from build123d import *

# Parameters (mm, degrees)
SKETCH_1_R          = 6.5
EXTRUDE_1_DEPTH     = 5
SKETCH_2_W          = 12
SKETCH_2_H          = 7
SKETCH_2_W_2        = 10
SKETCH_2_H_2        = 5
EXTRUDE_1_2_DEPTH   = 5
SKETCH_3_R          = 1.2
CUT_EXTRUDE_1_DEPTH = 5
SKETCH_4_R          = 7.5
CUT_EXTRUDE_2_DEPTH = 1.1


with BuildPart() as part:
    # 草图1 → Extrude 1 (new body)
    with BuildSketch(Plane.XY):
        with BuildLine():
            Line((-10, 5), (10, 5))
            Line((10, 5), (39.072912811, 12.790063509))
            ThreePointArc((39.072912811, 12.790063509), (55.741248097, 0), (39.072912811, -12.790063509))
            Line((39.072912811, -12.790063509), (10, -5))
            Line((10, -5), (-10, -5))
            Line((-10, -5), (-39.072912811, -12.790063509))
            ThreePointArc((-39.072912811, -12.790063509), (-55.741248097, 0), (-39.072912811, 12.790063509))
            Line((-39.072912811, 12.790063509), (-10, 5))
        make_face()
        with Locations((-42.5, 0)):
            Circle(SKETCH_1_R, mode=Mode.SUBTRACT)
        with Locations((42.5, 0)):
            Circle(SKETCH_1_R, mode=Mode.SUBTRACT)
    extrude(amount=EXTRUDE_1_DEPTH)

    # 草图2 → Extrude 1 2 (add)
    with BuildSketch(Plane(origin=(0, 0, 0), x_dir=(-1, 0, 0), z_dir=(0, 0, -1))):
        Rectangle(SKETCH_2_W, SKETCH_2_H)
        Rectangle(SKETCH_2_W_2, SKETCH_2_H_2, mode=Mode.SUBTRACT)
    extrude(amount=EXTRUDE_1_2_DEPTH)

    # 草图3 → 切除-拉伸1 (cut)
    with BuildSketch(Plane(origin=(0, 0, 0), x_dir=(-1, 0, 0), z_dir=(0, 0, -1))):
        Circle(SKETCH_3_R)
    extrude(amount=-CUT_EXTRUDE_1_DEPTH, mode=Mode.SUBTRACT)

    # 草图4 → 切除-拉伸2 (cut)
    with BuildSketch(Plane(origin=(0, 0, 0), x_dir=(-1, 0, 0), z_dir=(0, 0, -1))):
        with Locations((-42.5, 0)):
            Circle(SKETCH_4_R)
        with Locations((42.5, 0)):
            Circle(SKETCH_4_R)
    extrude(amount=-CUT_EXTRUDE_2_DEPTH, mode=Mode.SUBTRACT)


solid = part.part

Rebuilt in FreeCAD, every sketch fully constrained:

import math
import FreeCAD as App
import Part
import Sketcher
from FreeCAD import Vector
Q = App.Units.Quantity


def add_polygon(sketch, points):
    """Adds a closed chain of lines whose ends are joined by coincident constraints."""
    first, n = sketch.GeometryCount, len(points)
    for a, b in zip(points, points[1:] + points[:1]):
        sketch.addGeometry(Part.LineSegment(App.Vector(*a, 0), App.Vector(*b, 0)), False)
    for i in range(n):
        sketch.addConstraint(Sketcher.Constraint("Coincident", first + i, 2, first + (i + 1) % n, 1))

doc = App.newDocument("Part")
params = doc.addObject("Spreadsheet::Sheet", "Params")
for row, (alias, value) in enumerate([
    ("sketch1_diameter", "13 mm"),
    ("sketch1_width", "20 mm"),
    ("pad1_length", "5 mm"),
    ("sketch2_width", "12 mm"),
    ("sketch2_width2", "10 mm"),
    ("sketch2_height", "7 mm"),
    ("sketch2_height2", "5 mm"),
    ("pad2_length", "5 mm"),
    ("sketch3_diameter", "2.4 mm"),
    ("pocket1_length", "5 mm"),
    ("sketch4_diameter", "15 mm"),
    ("pocket2_length", "1.1 mm"),
], start=1):
    params.set(f"A{row}", alias)
    params.set(f"B{row}", "=" + value)
    params.setAlias(f"B{row}", alias)

body = doc.addObject("PartDesign::Body", "Body")

# Sketch on XY plane
sketch1 = doc.addObject("Sketcher::SketchObject", "Sketch")
body.addObject(sketch1)
sketch1.AttachmentSupport = (doc.XY_Plane, [""])
sketch1.MapMode = "FlatFace"
sketch1.addGeometry([
    Part.LineSegment(Vector(10, 5, 0), Vector(-10, 5, 0)),  # 0
    Part.LineSegment(Vector(-10, 5, 0), Vector(-39, 13, 0)),  # 1
    Part.ArcOfCircle(Part.Circle(Vector(-42, 0, 0), Vector(0, 0, 1), 13), math.radians(75), math.radians(285)),  # 2
    Part.LineSegment(Vector(-39, -13, 0), Vector(-10, -5, 0)),  # 3
    Part.LineSegment(Vector(-10, -5, 0), Vector(10, -5, 0)),  # 4
    Part.LineSegment(Vector(10, -5, 0), Vector(39, -13, 0)),  # 5
    Part.ArcOfCircle(Part.Circle(Vector(42, 0, 0), Vector(0, 0, 1), 13), math.radians(-105), math.radians(105)),  # 6
    Part.LineSegment(Vector(39, 13, 0), Vector(10, 5, 0)),  # 7
    Part.Circle(Vector(42, 0, 0), Vector(0, 0, 1), 6),  # 8
    Part.Circle(Vector(-42, 0, 0), Vector(0, 0, 1), 6),  # 9
], False)
sketch1.addConstraint([
    Sketcher.Constraint("Coincident", 0, 2, 1, 1),
    Sketcher.Constraint("Tangent", 1, 2, 2, 1),
    Sketcher.Constraint("Tangent", 2, 2, 3, 1),
    Sketcher.Constraint("Coincident", 3, 2, 4, 1),
    Sketcher.Constraint("Coincident", 4, 2, 5, 1),
    Sketcher.Constraint("Tangent", 5, 2, 6, 1),
    Sketcher.Constraint("Tangent", 6, 2, 7, 1),
    Sketcher.Constraint("Coincident", 7, 2, 0, 1),
    Sketcher.Constraint("Horizontal", 0),
    Sketcher.Constraint("Horizontal", 4),
    Sketcher.Constraint("Coincident", 8, 3, 6, 3),
    Sketcher.Constraint("Coincident", 9, 3, 2, 3),
    Sketcher.Constraint("Equal", 2, 6),
    Sketcher.Constraint("Equal", 8, 9),
    Sketcher.Constraint("Symmetric", 2, 3, 6, 3, -1, 1),
    Sketcher.Constraint("Symmetric", 0, 2, 4, 2, -1, 1),
    Sketcher.Constraint("Symmetric", 2, 2, 5, 2, -2),
    Sketcher.Constraint("Parallel", 3, 7),
    Sketcher.Constraint("Diameter", 8, Q("13 mm")),
    Sketcher.Constraint("DistanceX", 0, 2, 0, 1, Q("20 mm")),
    Sketcher.Constraint("Angle", 1, Q("165 deg")),
    Sketcher.Constraint("DistanceY", -1, 1, 0, 2, Q("5 mm")),
    Sketcher.Constraint("DistanceX", 2, 3, 6, 3, Q("85 mm")),
])
sketch1.setExpression("Constraints[18]", "Params.sketch1_diameter")
sketch1.setExpression("Constraints[19]", "Params.sketch1_width")
pad1 = doc.addObject("PartDesign::Pad", "Pad")
body.addObject(pad1)
pad1.Profile = sketch1
pad1.setExpression("Length", "Params.pad1_length")

# Sketch on XY plane
sketch2 = doc.addObject("Sketcher::SketchObject", "Sketch001")
body.addObject(sketch2)
sketch2.AttachmentSupport = (doc.XY_Plane, [""])
sketch2.MapMode = "FlatFace"
add_polygon(sketch2, [(6, 4), (6, -4), (-6, -4), (-6, 4)])  # lines 0-3
add_polygon(sketch2, [(-5, -2), (5, -2), (5, 2), (-5, 2)])  # lines 4-7
sketch2.addConstraint([
    Sketcher.Constraint("Vertical", 0),
    Sketcher.Constraint("Horizontal", 1),
    Sketcher.Constraint("Vertical", 2),
    Sketcher.Constraint("Horizontal", 3),
    Sketcher.Constraint("Horizontal", 4),
    Sketcher.Constraint("Vertical", 5),
    Sketcher.Constraint("Horizontal", 6),
    Sketcher.Constraint("Vertical", 7),
    Sketcher.Constraint("Symmetric", 0, 2, 2, 2, -1, 1),
    Sketcher.Constraint("Symmetric", 4, 2, 6, 2, -1, 1),
    Sketcher.Constraint("DistanceX", 1, 2, 1, 1, Q("12 mm")),
    Sketcher.Constraint("DistanceX", 4, 1, 4, 2, Q("10 mm")),
    Sketcher.Constraint("DistanceY", 0, 2, 0, 1, Q("7 mm")),
    Sketcher.Constraint("DistanceY", 5, 1, 5, 2, Q("5 mm")),
])
sketch2.setExpression("Constraints[18]", "Params.sketch2_width")
sketch2.setExpression("Constraints[19]", "Params.sketch2_width2")
sketch2.setExpression("Constraints[20]", "Params.sketch2_height")
sketch2.setExpression("Constraints[21]", "Params.sketch2_height2")
pad2 = doc.addObject("PartDesign::Pad", "Pad001")
body.addObject(pad2)
pad2.Profile = sketch2
pad2.setExpression("Length", "Params.pad2_length")
pad2.Reversed = True

# Sketch on XY plane
sketch3 = doc.addObject("Sketcher::SketchObject", "Sketch002")
body.addObject(sketch3)
sketch3.AttachmentSupport = (doc.XY_Plane, [""])
sketch3.MapMode = "FlatFace"
sketch3.addGeometry(Part.Circle(Vector(0, 0, 0), Vector(0, 0, 1), 1.2), False)
sketch3.addConstraint([
    Sketcher.Constraint("Coincident", 0, 3, -1, 1),
    Sketcher.Constraint("Diameter", 0, Q("2.4 mm")),
])
sketch3.setExpression("Constraints[1]", "Params.sketch3_diameter")
pocket1 = doc.addObject("PartDesign::Pocket", "Pocket")
body.addObject(pocket1)
pocket1.Profile = sketch3
pocket1.setExpression("Length", "Params.pocket1_length")
pocket1.Reversed = True

# Sketch on XY plane
sketch4 = doc.addObject("Sketcher::SketchObject", "Sketch003")
body.addObject(sketch4)
sketch4.AttachmentSupport = (doc.XY_Plane, [""])
sketch4.MapMode = "FlatFace"
sketch4.addGeometry([
    Part.Circle(Vector(42, 0, 0), Vector(0, 0, 1), 8),
    Part.Circle(Vector(-42, 0, 0), Vector(0, 0, 1), 8),
], False)
sketch4.addConstraint([
    Sketcher.Constraint("Equal", 0, 1),
    Sketcher.Constraint("Symmetric", 0, 3, 1, 3, -1, 1),
    Sketcher.Constraint("PointOnObject", 0, 3, -1),
    Sketcher.Constraint("Diameter", 0, Q("15 mm")),
    Sketcher.Constraint("DistanceX", 1, 3, 0, 3, Q("85 mm")),
])
sketch4.setExpression("Constraints[3]", "Params.sketch4_diameter")
pocket2 = doc.addObject("PartDesign::Pocket", "Pocket001")
body.addObject(pocket2)
pocket2.Profile = sketch4
pocket2.setExpression("Length", "Params.pocket2_length")
pocket2.Reversed = True

doc.recompute()
